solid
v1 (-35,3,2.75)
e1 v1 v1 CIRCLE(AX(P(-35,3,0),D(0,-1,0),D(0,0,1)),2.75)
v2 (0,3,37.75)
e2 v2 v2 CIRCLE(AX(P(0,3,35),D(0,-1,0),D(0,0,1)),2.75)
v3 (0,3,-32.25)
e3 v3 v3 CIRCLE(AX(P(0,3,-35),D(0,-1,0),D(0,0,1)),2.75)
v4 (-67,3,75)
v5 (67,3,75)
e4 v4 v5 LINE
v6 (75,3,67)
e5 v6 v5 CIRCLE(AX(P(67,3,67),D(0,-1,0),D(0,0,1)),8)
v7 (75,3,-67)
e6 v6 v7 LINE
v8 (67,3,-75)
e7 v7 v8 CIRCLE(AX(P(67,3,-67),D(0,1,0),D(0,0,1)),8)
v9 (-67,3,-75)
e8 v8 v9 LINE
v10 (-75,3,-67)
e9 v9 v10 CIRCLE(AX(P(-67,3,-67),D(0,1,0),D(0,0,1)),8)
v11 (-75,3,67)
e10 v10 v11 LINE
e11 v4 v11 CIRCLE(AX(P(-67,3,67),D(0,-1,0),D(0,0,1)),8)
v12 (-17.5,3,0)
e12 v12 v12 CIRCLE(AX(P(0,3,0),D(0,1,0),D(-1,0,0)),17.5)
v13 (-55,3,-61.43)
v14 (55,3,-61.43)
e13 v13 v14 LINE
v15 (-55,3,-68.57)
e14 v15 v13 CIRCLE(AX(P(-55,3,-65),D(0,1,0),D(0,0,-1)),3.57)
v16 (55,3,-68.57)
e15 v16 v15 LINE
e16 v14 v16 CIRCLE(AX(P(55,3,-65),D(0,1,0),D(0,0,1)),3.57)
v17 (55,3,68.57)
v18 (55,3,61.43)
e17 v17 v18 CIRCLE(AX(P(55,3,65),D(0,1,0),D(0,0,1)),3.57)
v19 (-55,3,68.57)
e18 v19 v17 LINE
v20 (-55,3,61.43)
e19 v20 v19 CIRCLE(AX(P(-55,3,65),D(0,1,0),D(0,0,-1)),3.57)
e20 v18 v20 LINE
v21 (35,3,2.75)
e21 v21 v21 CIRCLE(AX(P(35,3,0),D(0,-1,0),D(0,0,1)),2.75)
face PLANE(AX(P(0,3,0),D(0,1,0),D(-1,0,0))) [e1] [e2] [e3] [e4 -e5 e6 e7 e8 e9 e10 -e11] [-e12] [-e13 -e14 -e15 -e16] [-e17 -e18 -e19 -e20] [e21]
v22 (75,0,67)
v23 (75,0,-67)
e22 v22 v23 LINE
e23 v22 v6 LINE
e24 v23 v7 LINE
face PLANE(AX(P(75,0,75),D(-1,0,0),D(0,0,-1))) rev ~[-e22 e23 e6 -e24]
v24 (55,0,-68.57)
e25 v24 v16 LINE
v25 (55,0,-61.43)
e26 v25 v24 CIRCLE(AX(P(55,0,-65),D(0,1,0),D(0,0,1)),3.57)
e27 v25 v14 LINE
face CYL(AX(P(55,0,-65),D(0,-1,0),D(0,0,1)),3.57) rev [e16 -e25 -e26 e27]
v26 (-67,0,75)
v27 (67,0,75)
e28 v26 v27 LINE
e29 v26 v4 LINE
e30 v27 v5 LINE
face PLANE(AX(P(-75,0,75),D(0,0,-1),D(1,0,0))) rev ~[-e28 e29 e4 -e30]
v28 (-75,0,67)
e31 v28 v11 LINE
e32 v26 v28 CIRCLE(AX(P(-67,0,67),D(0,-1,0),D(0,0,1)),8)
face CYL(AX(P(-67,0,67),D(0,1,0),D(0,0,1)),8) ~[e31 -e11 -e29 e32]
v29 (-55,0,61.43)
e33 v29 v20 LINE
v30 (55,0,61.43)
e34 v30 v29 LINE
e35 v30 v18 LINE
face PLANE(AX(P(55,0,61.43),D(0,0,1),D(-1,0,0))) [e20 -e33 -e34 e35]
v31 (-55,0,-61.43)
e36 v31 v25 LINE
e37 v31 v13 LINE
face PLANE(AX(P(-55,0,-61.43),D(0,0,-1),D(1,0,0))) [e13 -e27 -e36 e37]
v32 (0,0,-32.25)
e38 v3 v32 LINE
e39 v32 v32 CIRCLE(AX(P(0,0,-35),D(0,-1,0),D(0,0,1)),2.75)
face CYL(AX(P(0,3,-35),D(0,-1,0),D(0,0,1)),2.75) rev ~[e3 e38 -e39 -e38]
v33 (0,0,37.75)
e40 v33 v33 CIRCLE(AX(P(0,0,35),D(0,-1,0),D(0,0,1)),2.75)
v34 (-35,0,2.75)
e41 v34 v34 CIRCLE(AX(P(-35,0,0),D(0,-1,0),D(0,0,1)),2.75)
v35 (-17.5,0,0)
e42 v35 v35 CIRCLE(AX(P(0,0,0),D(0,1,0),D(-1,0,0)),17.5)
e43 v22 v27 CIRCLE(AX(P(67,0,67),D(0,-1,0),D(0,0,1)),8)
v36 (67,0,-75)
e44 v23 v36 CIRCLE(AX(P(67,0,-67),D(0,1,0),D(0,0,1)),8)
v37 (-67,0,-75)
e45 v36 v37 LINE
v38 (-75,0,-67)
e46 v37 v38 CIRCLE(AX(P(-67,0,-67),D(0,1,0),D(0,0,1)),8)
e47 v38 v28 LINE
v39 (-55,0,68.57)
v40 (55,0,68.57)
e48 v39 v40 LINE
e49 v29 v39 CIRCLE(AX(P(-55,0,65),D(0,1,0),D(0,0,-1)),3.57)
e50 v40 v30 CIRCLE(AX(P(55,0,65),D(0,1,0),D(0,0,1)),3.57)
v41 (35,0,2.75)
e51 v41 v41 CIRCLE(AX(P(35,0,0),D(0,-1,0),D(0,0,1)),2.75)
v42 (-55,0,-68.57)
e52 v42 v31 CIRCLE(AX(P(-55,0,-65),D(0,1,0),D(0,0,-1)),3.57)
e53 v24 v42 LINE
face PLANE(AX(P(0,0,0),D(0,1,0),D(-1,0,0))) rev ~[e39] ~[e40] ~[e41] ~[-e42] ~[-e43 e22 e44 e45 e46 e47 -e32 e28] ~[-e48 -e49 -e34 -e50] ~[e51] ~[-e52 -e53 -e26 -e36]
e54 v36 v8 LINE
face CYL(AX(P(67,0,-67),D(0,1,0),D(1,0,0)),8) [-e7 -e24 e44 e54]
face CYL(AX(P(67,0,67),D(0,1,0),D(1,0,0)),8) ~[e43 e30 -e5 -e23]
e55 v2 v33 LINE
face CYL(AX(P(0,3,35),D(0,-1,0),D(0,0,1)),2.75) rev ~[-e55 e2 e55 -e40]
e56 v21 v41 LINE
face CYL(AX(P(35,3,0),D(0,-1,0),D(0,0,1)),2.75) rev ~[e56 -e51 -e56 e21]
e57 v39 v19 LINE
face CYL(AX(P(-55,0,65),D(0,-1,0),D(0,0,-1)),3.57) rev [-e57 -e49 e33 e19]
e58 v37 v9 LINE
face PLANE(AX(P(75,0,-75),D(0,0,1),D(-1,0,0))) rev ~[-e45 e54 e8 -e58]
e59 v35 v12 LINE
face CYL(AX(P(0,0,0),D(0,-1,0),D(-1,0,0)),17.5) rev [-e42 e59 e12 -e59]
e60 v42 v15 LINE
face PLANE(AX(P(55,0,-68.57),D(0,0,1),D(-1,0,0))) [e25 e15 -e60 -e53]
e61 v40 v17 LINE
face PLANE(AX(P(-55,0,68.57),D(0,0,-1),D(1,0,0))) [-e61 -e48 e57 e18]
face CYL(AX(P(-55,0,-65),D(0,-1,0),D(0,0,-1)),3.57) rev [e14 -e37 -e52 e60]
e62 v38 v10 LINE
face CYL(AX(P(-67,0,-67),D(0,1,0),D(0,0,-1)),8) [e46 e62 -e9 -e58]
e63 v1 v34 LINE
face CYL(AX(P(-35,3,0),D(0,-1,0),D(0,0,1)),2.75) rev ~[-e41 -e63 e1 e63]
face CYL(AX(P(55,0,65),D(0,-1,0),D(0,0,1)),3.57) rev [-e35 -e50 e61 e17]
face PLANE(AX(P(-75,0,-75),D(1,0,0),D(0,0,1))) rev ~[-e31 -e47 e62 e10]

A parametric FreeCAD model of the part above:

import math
import FreeCAD as App
import Part
import Sketcher
Q = App.Units.Quantity


def edges_at(feature, points):
    """Names of the edges that pass closest to the given points."""
    edges = feature.Shape.Edges
    near = lambda p: min(range(len(edges)), key=lambda i: edges[i].distToShape(Part.Vertex(*p))[0])
    return sorted({f"Edge{near(p) + 1}" for p in points})


def add_polygon(sketch, points):
    """Adds a closed chain of lines whose ends are joined by coincident constraints."""
    first, n = sketch.GeometryCount, len(points)
    for a, b in zip(points, points[1:] + points[:1]):
        sketch.addGeometry(Part.LineSegment(App.Vector(*a, 0), App.Vector(*b, 0)), False)
    for i in range(n):
        sketch.addConstraint(Sketcher.Constraint("Coincident", first + i, 2, first + (i + 1) % n, 1))

doc = App.newDocument("Part")
body = doc.addObject("PartDesign::Body", "Body")

# Sketch on XZ plane
sketch1 = body.newObject("Sketcher::SketchObject", "Sketch")
sketch1.AttachmentSupport = (doc.getObject("XZ_Plane"), [""])
sketch1.MapMode = "FlatFace"
add_polygon(sketch1, [(75, 75), (75, -75), (-75, -75), (-75, 75)])  # lines 0-3
sketch1.addGeometry(Part.LineSegment(App.Vector(-55, -68.6, 0), App.Vector(55, -68.6, 0)), False)  # 4
sketch1.addGeometry(Part.ArcOfCircle(Part.Circle(App.Vector(55, -65, 0), App.Vector(0, 0, 1), 3.6), math.radians(-90), math.radians(90)), False)  # 5
sketch1.addGeometry(Part.LineSegment(App.Vector(55, -61.4, 0), App.Vector(-55, -61.4, 0)), False)  # 6
sketch1.addGeometry(Part.ArcOfCircle(Part.Circle(App.Vector(-55, -65, 0), App.Vector(0, 0, 1), 3.6), math.radians(90), math.radians(270)), False)  # 7
sketch1.addGeometry(Part.Circle(App.Vector(0, 0, 0), App.Vector(0, 0, 1), 17.5), False)  # 8
sketch1.addGeometry(Part.LineSegment(App.Vector(-55, 61.4, 0), App.Vector(55, 61.4, 0)), False)  # 9
sketch1.addGeometry(Part.ArcOfCircle(Part.Circle(App.Vector(55, 65, 0), App.Vector(0, 0, 1), 3.6), math.radians(-90), math.radians(90)), False)  # 10
sketch1.addGeometry(Part.LineSegment(App.Vector(55, 68.6, 0), App.Vector(-55, 68.6, 0)), False)  # 11
sketch1.addGeometry(Part.ArcOfCircle(Part.Circle(App.Vector(-55, 65, 0), App.Vector(0, 0, 1), 3.6), math.radians(90), math.radians(270)), False)  # 12
sketch1.addConstraint([
    Sketcher.Constraint("Tangent", 4, 2, 5, 1),
    Sketcher.Constraint("Tangent", 5, 2, 6, 1),
    Sketcher.Constraint("Tangent", 6, 2, 7, 1),
    Sketcher.Constraint("Tangent", 7, 2, 4, 1),
    Sketcher.Constraint("Tangent", 9, 2, 10, 1),
    Sketcher.Constraint("Tangent", 10, 2, 11, 1),
    Sketcher.Constraint("Tangent", 11, 2, 12, 1),
    Sketcher.Constraint("Tangent", 12, 2, 9, 1),
    Sketcher.Constraint("Vertical", 0),
    Sketcher.Constraint("Horizontal", 1),
    Sketcher.Constraint("Vertical", 2),
    Sketcher.Constraint("Horizontal", 3),
    Sketcher.Constraint("Horizontal", 4),
    Sketcher.Constraint("Horizontal", 6),
    Sketcher.Constraint("Horizontal", 9),
    Sketcher.Constraint("Horizontal", 11),
    Sketcher.Constraint("Coincident", 8, 3, -1, 1),
    Sketcher.Constraint("Equal", 7, 10),
    Sketcher.Constraint("Symmetric", 7, 3, 10, 3, -1, 1),
    Sketcher.Constraint("Symmetric", 0, 2, 2, 2, -1, 1),
    Sketcher.Constraint("Vertical", 5, 3, 10, 3),
    Sketcher.Constraint("Vertical", 7, 3, 12, 3),
    Sketcher.Constraint("Equal", 3, 0),
    Sketcher.Constraint("Diameter", 8, Q("35 mm")),
    Sketcher.Constraint("DistanceX", 1, 2, 1, 1, Q("150 mm")),
    Sketcher.Constraint("Radius", 5, Q("3.57 mm")),
    Sketcher.Constraint("DistanceX", 5, 3, 0, 2, Q("20 mm")),
    Sketcher.Constraint("DistanceY", 0, 2, 5, 3, Q("10 mm")),
])
pad1 = body.newObject("PartDesign::Pad", "Pad")
pad1.Profile = sketch1
pad1.Length = 3
pad1.Reversed = True

# Sketch on XZ plane
sketch2 = body.newObject("Sketcher::SketchObject", "Sketch001")
sketch2.AttachmentSupport = (doc.getObject("XZ_Plane"), [""])
sketch2.MapMode = "FlatFace"
sketch2.AttachmentOffset = App.Placement(App.Vector(0, 0, -3), App.Rotation())
sketch2.addGeometry([
    Part.Circle(App.Vector(0, 35, 0), App.Vector(0, 0, 1), 2.8),
    Part.Circle(App.Vector(35, 0, 0), App.Vector(0, 0, 1), 2.8),
    Part.Circle(App.Vector(0, -35, 0), App.Vector(0, 0, 1), 2.8),
    Part.Circle(App.Vector(-35, 0, 0), App.Vector(0, 0, 1), 2.8),
], False)
sketch2.addConstraint([
    Sketcher.Constraint("Equal", 0, 1),
    Sketcher.Constraint("Equal", 1, 2),
    Sketcher.Constraint("Equal", 2, 3),
    Sketcher.Constraint("Symmetric", 0, 3, 2, 3, -1, 1),
    Sketcher.Constraint("Symmetric", 1, 3, 3, 3, -1, 1),
    Sketcher.Constraint("PointOnObject", 0, 3, -2),
    Sketcher.Constraint("PointOnObject", 1, 3, -1),
    Sketcher.Constraint("Diameter", 0, Q("5.5 mm")),
    Sketcher.Constraint("DistanceY", -1, 1, 0, 3, Q("35 mm")),
    Sketcher.Constraint("DistanceX", -1, 1, 1, 3, Q("35 mm")),
])
doc.recompute()
hole = body.newObject("PartDesign::Hole", "Hole")
hole.Profile = sketch2
hole.ThreadType = "None"
hole.Diameter = 5.5
hole.DepthType = "ThroughAll"
hole.Reversed = True
doc.recompute()

fillet = body.newObject("PartDesign::Fillet", "Fillet")
fillet.Base = (hole, edges_at(hole, [
    (-75, 1.5, -75),
    (-75, 1.5, 75),
    (75, 1.5, 75),
    (75, 1.5, -75),
]))
fillet.Radius = 8

doc.recompute()
